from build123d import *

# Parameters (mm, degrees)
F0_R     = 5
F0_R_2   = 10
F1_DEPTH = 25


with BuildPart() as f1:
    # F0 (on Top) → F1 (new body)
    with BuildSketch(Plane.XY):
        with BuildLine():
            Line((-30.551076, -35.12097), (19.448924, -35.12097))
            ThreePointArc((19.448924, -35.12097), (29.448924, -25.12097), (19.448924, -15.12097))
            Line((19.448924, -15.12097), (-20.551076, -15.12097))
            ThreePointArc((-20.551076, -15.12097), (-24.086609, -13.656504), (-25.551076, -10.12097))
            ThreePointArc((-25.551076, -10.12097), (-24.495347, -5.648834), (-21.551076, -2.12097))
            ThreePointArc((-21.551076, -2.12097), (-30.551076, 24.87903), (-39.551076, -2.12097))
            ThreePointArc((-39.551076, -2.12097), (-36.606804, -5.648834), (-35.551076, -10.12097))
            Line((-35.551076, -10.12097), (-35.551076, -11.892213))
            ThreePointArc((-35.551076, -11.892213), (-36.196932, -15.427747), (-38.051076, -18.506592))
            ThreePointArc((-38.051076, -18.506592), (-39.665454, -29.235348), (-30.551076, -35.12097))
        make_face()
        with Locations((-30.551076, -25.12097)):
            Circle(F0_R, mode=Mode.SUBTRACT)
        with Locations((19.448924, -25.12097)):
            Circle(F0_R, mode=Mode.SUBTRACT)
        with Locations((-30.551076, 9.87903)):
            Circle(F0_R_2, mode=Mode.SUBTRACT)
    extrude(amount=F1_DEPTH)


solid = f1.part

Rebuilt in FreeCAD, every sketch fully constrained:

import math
import FreeCAD as App
import Part
import Sketcher

V = App.Vector
Q = App.Units.Quantity

doc = App.newDocument("Part")
body = doc.addObject("PartDesign::Body", "Body")

# Sketch on XY plane
sketch1 = body.newObject("Sketcher::SketchObject", "Sketch")
sketch1.AttachmentSupport = (doc.getObject("XY_Plane"), [""])
sketch1.MapMode = "FlatFace"
sketch1.addGeometry([
    Part.LineSegment(V(-30.551076, -35.12097, 0), V(19.448924, -35.12097, 0)),  # 0
    Part.ArcOfCircle(Part.Circle(V(19.448924, -25.12097, 0), V(0, 0, 1), 10), math.radians(-90), math.radians(90)),  # 1
    Part.LineSegment(V(19.448924, -15.12097, 0), V(-20.551076, -15.12097, 0)),  # 2
    Part.ArcOfCircle(Part.Circle(V(-20.551075, -10.120969, 0), V(0, 0, 1), 5.000001), math.radians(-179.999984), math.radians(-90.000016)),  # 3
    Part.ArcOfCircle(Part.Circle(V(-15.551069, -10.120973, 0), V(0, 0, 1), 10.000007), math.radians(126.869917), math.radians(179.999981)),  # 4
    Part.ArcOfCircle(Part.Circle(V(-30.551076, 9.87903, 0), V(0, 0, 1), 15), math.radians(-53.130102), math.radians(233.130102)),  # 5
    Part.ArcOfCircle(Part.Circle(V(-45.551075, -10.12097, 0), V(0, 0, 1), 9.999999), math.radians(-0.000002), math.radians(53.130105)),  # 6
    Part.LineSegment(V(-35.551076, -10.12097, 0), V(-35.551076, -11.892213, 0)),  # 7
    Part.ArcOfCircle(Part.Circle(V(-45.551072, -11.892215, 0), V(0, 0, 1), 9.999996), math.radians(-41.409631), math.radians(0.000013)),  # 8
    Part.ArcOfCircle(Part.Circle(V(-30.551076, -25.12097, 0), V(0, 0, 1), 10), math.radians(138.590381), math.radians(269.999997)),  # 9
    Part.Circle(V(-30.551076, -25.12097, 0), V(0, 0, 1), 5),  # 10
    Part.Circle(V(19.448924, -25.12097, 0), V(0, 0, 1), 5),  # 11
    Part.Circle(V(-30.551076, 9.87903, 0), V(0, 0, 1), 10),  # 12
], False)
sketch1.addConstraint([
    Sketcher.Constraint("Tangent", 0, 2, 1, 1),
    Sketcher.Constraint("Tangent", 1, 2, 2, 1),
    Sketcher.Constraint("Tangent", 2, 2, 3, 2),
    Sketcher.Constraint("Tangent", 3, 1, 4, 2),
    Sketcher.Constraint("Tangent", 4, 1, 5, 1),
    Sketcher.Constraint("Tangent", 5, 2, 6, 2),
    Sketcher.Constraint("Tangent", 6, 1, 7, 1),
    Sketcher.Constraint("Tangent", 7, 2, 8, 2),
    Sketcher.Constraint("Tangent", 8, 1, 9, 1),
    Sketcher.Constraint("Tangent", 9, 2, 0, 1),
    Sketcher.Constraint("Horizontal", 0),
    Sketcher.Constraint("Horizontal", 2),
    Sketcher.Constraint("Vertical", 7),
    Sketcher.Constraint("Coincident", 10, 3, 9, 3),
    Sketcher.Constraint("Coincident", 11, 3, 1, 3),
    Sketcher.Constraint("Coincident", 12, 3, 5, 3),
    Sketcher.Constraint("Equal", 1, 6),
    Sketcher.Constraint("Equal", 6, 9),
    Sketcher.Constraint("Equal", 3, 10),
    Sketcher.Constraint("Equal", 10, 11),
    Sketcher.Constraint("Equal", 9, 12),
    Sketcher.Constraint("Horizontal", 3, 3, 6, 3),
    Sketcher.Constraint("Horizontal", 6, 3, 3, 1),
    Sketcher.Constraint("Horizontal", 4, 1, 5, 2),
    Sketcher.Constraint("Vertical", 5, 3, 9, 3),
    Sketcher.Constraint("Diameter", 10, Q("10 mm")),
    Sketcher.Constraint("Diameter", 12, Q("20 mm")),
    Sketcher.Constraint("Radius", 5, Q("15 mm")),
    Sketcher.Constraint("DistanceX", 0, 1, 0, 2, Q("50 mm")),
    Sketcher.Constraint("DistanceX", 2, 2, 2, 1, Q("40 mm")),
    Sketcher.Constraint("DistanceX", 8, 1, 7, 2, Q("2.5 mm")),
    Sketcher.Constraint("DistanceY", 1, 3, -1, 1, Q("25.12097 mm")),
    Sketcher.Constraint("DistanceX", 4, 3, -1, 1, Q("15.551069 mm")),
])
pad1 = body.newObject("PartDesign::Pad", "Pad")
pad1.Profile = sketch1
pad1.Length = 25

doc.recompute()
